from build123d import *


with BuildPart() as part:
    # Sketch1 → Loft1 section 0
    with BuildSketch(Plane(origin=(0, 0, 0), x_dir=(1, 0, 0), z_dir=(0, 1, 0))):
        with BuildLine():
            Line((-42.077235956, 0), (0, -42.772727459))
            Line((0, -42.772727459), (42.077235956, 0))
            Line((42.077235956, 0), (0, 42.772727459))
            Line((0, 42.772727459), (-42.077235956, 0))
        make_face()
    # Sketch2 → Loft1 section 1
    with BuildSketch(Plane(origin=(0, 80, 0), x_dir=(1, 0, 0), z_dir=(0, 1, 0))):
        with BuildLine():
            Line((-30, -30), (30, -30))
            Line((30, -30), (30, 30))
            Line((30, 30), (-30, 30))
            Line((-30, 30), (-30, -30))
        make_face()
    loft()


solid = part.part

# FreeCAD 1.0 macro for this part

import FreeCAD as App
import Part
import Sketcher
from FreeCAD import Vector


def add_polygon(sketch, points):
    """Adds a closed chain of lines whose ends are joined by coincident constraints."""
    first, n = sketch.GeometryCount, len(points)
    for a, b in zip(points, points[1:] + points[:1]):
        sketch.addGeometry(Part.LineSegment(App.Vector(*a, 0), App.Vector(*b, 0)), False)
    for i in range(n):
        sketch.addConstraint(Sketcher.Constraint("Coincident", first + i, 2, first + (i + 1) % n, 1))

doc = App.newDocument("Part")
params = doc.addObject("Spreadsheet::Sheet", "Params")
for row, (alias, value) in enumerate([
    ("sketch1_length", "60 mm"),
    ("sketch2_width", "60 mm"),
], start=1):
    params.set(f"A{row}", alias)
    params.set(f"B{row}", "=" + value)
    params.setAlias(f"B{row}", alias)

body = doc.addObject("PartDesign::Body", "Body")

# Sketch on XZ plane
sketch1 = doc.addObject("Sketcher::SketchObject", "Sketch")
body.addObject(sketch1)
sketch1.AttachmentSupport = (doc.XZ_Plane, [""])
sketch1.MapMode = "FlatFace"
add_polygon(sketch1, [(-42.077236, 0), (0, 42.772727), (42.077236, 0), (0, -42.772727)])  # lines 0-3
sketch1.addConstraint([
    Sketcher.Constraint("Symmetric", 0, 2, 2, 2, -1, 1),
    Sketcher.Constraint("Symmetric", 1, 2, 3, 2, -1, 1),
    Sketcher.Constraint("PointOnObject", 0, 2, -2),
    Sketcher.Constraint("PointOnObject", 1, 2, -1),
    Sketcher.Constraint("Distance", 0, 60.0),
    Sketcher.Constraint("DistanceX", 3, 2, 1, 2, 84.154472),
])
sketch1.setExpression("Constraints[8]", "Params.sketch1_length")

# Sketch on XZ plane
sketch2 = doc.addObject("Sketcher::SketchObject", "Sketch001")
body.addObject(sketch2)
sketch2.AttachmentSupport = (doc.XZ_Plane, [""])
sketch2.MapMode = "FlatFace"
sketch2.AttachmentOffset = App.Placement(Vector(0, 0, -80), App.Rotation())
add_polygon(sketch2, [(-30, 30), (30, 30), (30, -30), (-30, -30)])  # lines 0-3
sketch2.addConstraint([
    Sketcher.Constraint("Horizontal", 0),
    Sketcher.Constraint("Vertical", 1),
    Sketcher.Constraint("Horizontal", 2),
    Sketcher.Constraint("Vertical", 3),
    Sketcher.Constraint("Symmetric", 0, 2, 2, 2, -1, 1),
    Sketcher.Constraint("Equal", 2, 1),
    Sketcher.Constraint("DistanceX", 0, 1, 0, 2, 60.0),
])
sketch2.setExpression("Constraints[10]", "Params.sketch2_width")

additiveloft = doc.addObject("PartDesign::AdditiveLoft", "AdditiveLoft")
body.addObject(additiveloft)
additiveloft.Profile = sketch1
additiveloft.Sections = [sketch2]

doc.recompute()
